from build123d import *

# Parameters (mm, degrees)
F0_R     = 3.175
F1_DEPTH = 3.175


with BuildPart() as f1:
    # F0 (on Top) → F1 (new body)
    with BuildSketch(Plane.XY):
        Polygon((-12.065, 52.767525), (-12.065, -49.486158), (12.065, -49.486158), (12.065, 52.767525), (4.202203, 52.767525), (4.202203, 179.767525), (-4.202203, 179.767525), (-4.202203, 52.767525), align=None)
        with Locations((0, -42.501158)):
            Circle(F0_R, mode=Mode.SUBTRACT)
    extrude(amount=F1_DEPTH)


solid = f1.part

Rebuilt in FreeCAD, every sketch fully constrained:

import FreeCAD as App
import Part
import Sketcher

V = App.Vector
Q = App.Units.Quantity

doc = App.newDocument("Part")
body = doc.addObject("PartDesign::Body", "Body")

sketch1 = body.newObject("Sketcher::SketchObject", "Sketch")
sketch1.AttachmentSupport = (doc.getObject("XY_Plane"), [""])
sketch1.MapMode = "FlatFace"
sketch1.addGeometry(Part.LineSegment(V(-12.1, 52.8, 0), V(-12.1, -49.5, 0)), False)
sketch1.addGeometry(Part.LineSegment(V(-12.1, -49.5, 0), V(12.1, -49.5, 0)), False)
sketch1.addGeometry(Part.LineSegment(V(12.1, -49.5, 0), V(12.1, 52.8, 0)), False)
sketch1.addGeometry(Part.LineSegment(V(12.1, 52.8, 0), V(4.2, 52.8, 0)), False)
sketch1.addGeometry(Part.LineSegment(V(4.2, 52.8, 0), V(4.2, 179.8, 0)), False)
sketch1.addGeometry(Part.LineSegment(V(4.2, 179.8, 0), V(-4.2, 179.8, 0)), False)
sketch1.addGeometry(Part.LineSegment(V(-4.2, 179.8, 0), V(-4.2, 52.8, 0)), False)
sketch1.addGeometry(Part.LineSegment(V(-4.2, 52.8, 0), V(-12.1, 52.8, 0)), False)
sketch1.addGeometry(Part.Circle(V(0, -42.5, 0), V(0, 0, 1), 3.2), False)
sketch1.addConstraint(Sketcher.Constraint("Coincident", 0, 2, 1, 1))
sketch1.addConstraint(Sketcher.Constraint("Coincident", 1, 2, 2, 1))
sketch1.addConstraint(Sketcher.Constraint("Coincident", 2, 2, 3, 1))
sketch1.addConstraint(Sketcher.Constraint("Coincident", 3, 2, 4, 1))
sketch1.addConstraint(Sketcher.Constraint("Coincident", 4, 2, 5, 1))
sketch1.addConstraint(Sketcher.Constraint("Coincident", 5, 2, 6, 1))
sketch1.addConstraint(Sketcher.Constraint("Coincident", 6, 2, 7, 1))
sketch1.addConstraint(Sketcher.Constraint("Coincident", 7, 2, 0, 1))
sketch1.addConstraint(Sketcher.Constraint("Vertical", 0))
sketch1.addConstraint(Sketcher.Constraint("Horizontal", 1))
sketch1.addConstraint(Sketcher.Constraint("Vertical", 2))
sketch1.addConstraint(Sketcher.Constraint("Horizontal", 3))
sketch1.addConstraint(Sketcher.Constraint("Vertical", 4))
sketch1.addConstraint(Sketcher.Constraint("Horizontal", 5))
sketch1.addConstraint(Sketcher.Constraint("Vertical", 6))
sketch1.addConstraint(Sketcher.Constraint("Horizontal", 7))
sketch1.addConstraint(Sketcher.Constraint("Symmetric", 3, 2, 6, 2, -2))
sketch1.addConstraint(Sketcher.Constraint("PointOnObject", 8, 3, -2))
sketch1.addConstraint(Sketcher.Constraint("Equal", 3, 7))
sketch1.addConstraint(Sketcher.Constraint("Diameter", 8, Q("0.25 in")))
sketch1.addConstraint(Sketcher.Constraint("DistanceY", 4, 1, 4, 2, Q("5 in")))
sketch1.addConstraint(Sketcher.Constraint("DistanceX", 1, 1, 1, 2, Q("0.95 in")))
sketch1.addConstraint(Sketcher.Constraint("DistanceY", 0, 2, 8, 3, Q("0.275 in")))
sketch1.addConstraint(Sketcher.Constraint("DistanceX", 3, 2, 3, 1, 7.862797))
sketch1.addConstraint(Sketcher.Constraint("DistanceY", 0, 2, 0, 1, 102.253683))
sketch1.addConstraint(Sketcher.Constraint("DistanceY", 0, 2, -1, 1, 49.486158))
pad1 = body.newObject("PartDesign::Pad", "Pad")
pad1.Profile = sketch1
pad1.Length = Q("0.125 in")

doc.recompute()
